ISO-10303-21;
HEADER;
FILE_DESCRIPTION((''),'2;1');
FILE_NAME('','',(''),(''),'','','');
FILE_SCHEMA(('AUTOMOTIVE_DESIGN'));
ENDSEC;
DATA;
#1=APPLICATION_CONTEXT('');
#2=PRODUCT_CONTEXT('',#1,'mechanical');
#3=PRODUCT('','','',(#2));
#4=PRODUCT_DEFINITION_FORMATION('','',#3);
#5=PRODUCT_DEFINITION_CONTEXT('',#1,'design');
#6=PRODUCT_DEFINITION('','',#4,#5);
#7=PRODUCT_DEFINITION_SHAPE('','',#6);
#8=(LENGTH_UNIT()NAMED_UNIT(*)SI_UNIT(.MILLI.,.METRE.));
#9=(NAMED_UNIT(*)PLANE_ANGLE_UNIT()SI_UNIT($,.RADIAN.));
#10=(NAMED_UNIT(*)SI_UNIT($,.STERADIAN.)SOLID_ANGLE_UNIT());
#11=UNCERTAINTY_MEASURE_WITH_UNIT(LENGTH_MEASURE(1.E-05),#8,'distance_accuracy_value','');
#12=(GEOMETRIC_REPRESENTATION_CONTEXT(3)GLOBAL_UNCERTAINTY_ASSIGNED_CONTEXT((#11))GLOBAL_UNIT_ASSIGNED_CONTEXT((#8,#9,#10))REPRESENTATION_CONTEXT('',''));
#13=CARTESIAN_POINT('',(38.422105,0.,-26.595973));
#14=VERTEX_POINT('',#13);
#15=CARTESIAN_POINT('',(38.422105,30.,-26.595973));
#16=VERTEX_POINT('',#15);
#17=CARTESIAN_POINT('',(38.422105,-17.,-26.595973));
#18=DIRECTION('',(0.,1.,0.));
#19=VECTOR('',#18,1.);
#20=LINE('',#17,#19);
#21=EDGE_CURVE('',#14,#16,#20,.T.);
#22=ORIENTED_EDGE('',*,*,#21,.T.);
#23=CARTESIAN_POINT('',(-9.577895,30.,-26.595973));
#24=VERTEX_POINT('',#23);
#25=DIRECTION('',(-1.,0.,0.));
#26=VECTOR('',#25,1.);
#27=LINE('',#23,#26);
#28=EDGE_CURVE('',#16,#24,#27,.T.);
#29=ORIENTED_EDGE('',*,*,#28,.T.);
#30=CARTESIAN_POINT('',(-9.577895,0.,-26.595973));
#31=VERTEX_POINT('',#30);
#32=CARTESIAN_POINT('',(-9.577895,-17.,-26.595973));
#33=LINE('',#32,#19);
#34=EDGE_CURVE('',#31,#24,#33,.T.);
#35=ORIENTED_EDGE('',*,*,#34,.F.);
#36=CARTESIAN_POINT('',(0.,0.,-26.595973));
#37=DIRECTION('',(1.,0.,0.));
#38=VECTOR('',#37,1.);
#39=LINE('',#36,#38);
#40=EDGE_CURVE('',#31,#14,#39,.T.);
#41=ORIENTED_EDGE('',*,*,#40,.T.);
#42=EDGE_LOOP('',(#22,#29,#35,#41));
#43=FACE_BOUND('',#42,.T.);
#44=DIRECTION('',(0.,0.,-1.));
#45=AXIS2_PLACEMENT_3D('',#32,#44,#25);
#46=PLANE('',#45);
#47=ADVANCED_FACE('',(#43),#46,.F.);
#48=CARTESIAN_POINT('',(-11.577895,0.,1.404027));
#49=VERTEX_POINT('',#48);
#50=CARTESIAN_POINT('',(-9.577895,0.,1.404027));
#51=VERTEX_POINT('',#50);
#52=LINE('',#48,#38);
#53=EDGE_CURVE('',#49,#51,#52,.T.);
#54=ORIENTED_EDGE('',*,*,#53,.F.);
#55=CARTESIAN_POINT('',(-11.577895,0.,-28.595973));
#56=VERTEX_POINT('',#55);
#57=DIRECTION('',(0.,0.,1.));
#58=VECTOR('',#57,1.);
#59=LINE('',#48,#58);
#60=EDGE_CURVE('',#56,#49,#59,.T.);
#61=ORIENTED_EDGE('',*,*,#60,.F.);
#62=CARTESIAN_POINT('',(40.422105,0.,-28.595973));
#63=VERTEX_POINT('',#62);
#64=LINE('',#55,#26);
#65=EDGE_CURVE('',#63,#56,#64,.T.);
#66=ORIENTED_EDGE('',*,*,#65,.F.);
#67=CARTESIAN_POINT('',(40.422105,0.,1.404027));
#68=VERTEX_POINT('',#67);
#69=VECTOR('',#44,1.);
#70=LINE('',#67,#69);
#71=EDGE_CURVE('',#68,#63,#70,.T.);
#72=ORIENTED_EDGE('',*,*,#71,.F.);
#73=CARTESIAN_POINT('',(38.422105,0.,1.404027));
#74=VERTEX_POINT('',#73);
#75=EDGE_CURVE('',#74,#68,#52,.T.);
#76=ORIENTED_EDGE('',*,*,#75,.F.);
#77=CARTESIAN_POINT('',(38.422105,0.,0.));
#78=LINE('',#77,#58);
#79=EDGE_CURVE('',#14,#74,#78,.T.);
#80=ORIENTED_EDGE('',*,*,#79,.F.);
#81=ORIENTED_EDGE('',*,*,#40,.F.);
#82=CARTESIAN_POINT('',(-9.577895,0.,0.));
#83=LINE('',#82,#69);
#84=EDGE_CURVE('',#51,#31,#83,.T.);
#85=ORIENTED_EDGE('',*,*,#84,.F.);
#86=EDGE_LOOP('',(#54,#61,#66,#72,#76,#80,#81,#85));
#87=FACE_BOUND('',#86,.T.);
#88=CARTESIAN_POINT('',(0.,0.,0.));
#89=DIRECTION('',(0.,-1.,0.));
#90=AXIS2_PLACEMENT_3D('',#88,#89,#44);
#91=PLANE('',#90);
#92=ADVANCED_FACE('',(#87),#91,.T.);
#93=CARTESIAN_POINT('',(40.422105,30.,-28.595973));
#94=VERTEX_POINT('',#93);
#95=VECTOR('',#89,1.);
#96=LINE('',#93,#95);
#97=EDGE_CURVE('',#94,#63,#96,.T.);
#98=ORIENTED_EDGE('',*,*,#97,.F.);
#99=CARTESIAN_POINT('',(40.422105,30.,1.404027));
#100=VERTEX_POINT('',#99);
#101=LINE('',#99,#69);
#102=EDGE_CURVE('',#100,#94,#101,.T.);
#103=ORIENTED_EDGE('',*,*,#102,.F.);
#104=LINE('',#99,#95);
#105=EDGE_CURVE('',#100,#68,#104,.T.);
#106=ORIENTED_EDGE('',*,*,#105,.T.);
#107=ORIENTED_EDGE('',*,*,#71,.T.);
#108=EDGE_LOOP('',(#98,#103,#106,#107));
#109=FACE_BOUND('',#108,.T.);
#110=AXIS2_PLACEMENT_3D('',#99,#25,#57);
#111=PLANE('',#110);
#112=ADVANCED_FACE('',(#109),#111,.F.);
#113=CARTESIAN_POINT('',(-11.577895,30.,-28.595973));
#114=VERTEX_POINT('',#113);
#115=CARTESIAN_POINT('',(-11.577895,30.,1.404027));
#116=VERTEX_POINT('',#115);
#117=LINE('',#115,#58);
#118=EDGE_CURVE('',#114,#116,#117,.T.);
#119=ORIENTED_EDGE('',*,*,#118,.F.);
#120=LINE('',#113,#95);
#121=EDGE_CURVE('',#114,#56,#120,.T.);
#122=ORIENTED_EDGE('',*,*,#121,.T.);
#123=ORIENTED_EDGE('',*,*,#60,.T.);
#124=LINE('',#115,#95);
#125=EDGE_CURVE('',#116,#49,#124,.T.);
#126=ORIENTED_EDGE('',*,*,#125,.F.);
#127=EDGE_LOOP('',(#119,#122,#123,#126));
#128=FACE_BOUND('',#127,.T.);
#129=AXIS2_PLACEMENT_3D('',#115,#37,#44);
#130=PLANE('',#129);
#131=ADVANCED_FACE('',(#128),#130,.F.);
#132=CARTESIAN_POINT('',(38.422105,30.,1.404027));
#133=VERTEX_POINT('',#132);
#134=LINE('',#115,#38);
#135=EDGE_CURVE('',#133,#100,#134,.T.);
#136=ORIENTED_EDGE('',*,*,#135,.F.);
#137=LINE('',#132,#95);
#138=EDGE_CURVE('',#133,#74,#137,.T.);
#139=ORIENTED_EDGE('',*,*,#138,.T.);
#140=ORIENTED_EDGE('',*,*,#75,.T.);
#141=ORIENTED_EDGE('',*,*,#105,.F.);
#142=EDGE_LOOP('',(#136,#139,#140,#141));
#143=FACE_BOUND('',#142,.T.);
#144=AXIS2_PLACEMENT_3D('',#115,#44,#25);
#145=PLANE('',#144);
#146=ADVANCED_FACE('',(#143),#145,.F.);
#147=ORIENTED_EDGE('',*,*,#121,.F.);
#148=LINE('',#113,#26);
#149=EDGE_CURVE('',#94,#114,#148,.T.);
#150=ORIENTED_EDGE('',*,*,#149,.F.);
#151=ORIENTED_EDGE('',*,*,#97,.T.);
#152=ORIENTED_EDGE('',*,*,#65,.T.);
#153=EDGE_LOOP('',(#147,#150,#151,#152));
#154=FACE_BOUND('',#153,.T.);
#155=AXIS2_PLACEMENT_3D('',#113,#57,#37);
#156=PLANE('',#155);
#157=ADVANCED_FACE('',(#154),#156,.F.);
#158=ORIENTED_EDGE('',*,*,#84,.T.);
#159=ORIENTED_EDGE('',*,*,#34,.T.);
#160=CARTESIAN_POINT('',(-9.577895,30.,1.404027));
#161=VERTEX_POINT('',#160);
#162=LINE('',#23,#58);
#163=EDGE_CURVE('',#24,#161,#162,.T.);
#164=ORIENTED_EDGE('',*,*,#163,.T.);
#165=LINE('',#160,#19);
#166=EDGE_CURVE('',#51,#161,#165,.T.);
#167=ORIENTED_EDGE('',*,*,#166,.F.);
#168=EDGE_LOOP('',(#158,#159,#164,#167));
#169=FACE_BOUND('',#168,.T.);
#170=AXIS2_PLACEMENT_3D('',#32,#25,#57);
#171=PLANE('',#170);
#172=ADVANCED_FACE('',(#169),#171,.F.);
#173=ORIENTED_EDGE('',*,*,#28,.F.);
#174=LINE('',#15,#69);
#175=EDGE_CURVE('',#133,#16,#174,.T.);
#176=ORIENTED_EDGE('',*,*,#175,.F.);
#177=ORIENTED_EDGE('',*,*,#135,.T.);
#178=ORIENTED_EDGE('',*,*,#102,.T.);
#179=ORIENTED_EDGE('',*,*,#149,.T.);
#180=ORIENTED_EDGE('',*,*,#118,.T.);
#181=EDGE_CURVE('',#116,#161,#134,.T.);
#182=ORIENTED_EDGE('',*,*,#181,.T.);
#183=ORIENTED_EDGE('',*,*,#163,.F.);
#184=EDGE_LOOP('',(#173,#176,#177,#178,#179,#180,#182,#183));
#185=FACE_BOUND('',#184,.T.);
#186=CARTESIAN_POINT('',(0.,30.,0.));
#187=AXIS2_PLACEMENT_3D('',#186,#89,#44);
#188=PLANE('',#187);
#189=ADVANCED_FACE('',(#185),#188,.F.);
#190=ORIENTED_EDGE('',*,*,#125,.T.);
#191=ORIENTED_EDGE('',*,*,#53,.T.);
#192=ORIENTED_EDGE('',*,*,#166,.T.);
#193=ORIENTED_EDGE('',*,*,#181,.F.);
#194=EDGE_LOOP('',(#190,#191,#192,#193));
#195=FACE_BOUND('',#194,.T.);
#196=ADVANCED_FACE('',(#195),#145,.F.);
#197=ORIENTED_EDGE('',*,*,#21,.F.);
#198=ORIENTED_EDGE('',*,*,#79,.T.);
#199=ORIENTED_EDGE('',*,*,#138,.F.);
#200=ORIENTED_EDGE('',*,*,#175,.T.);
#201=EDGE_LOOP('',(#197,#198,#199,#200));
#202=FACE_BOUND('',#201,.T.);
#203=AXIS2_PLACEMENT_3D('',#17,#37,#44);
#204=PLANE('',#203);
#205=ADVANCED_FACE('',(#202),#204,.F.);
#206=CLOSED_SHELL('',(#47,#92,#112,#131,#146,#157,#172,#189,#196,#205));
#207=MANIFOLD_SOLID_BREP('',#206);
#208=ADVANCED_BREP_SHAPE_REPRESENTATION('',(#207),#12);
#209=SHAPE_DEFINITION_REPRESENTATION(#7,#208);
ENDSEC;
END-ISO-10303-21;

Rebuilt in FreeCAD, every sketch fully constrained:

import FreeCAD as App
import Part
import Sketcher
from FreeCAD import Vector


def add_polygon(sketch, points):
    """Adds a closed chain of lines whose ends are joined by coincident constraints."""
    first, n = sketch.GeometryCount, len(points)
    for a, b in zip(points, points[1:] + points[:1]):
        sketch.addGeometry(Part.LineSegment(App.Vector(*a, 0), App.Vector(*b, 0)), False)
    for i in range(n):
        sketch.addConstraint(Sketcher.Constraint("Coincident", first + i, 2, first + (i + 1) % n, 1))

doc = App.newDocument("Part")
body = doc.addObject("PartDesign::Body", "Body")

sketch1 = body.newObject("Sketcher::SketchObject", "Sketch")
sketch1.AttachmentSupport = (doc.getObject("XZ_Plane"), [""])
sketch1.MapMode = "FlatFace"
add_polygon(sketch1, [(-12, -29), (-12, 1), (40, 1), (40, -29)])
sketch1.addConstraint([
    Sketcher.Constraint("Vertical", 0),
    Sketcher.Constraint("Horizontal", 1),
    Sketcher.Constraint("Vertical", 2),
    Sketcher.Constraint("Horizontal", 3),
    Sketcher.Constraint("DistanceX", 1, 1, 1, 2, 52.0),
    Sketcher.Constraint("DistanceY", 0, 1, 0, 2, 30.0),
    Sketcher.Constraint("DistanceX", 0, 2, -1, 1, 11.577895),
    Sketcher.Constraint("DistanceY", -1, 1, 0, 2, 1.404027),
])
pad1 = body.newObject("PartDesign::Pad", "Pad")
pad1.Profile = sketch1
pad1.Length = 30
pad1.Reversed = True

sketch2 = body.newObject("Sketcher::SketchObject", "Sketch001")
sketch2.AttachmentSupport = (doc.getObject("XZ_Plane"), [""])
sketch2.MapMode = "FlatFace"
sketch2.AttachmentOffset = App.Placement(Vector(0, 0, -30), App.Rotation())
add_polygon(sketch2, [(-10, -27), (-10, 7), (38, 7), (38, -27)])
sketch2.addConstraint([
    Sketcher.Constraint("Vertical", 0),
    Sketcher.Constraint("Horizontal", 1),
    Sketcher.Constraint("Vertical", 2),
    Sketcher.Constraint("Horizontal", 3),
    Sketcher.Constraint("DistanceX", 1, 1, 1, 2, 48.0),
    Sketcher.Constraint("DistanceY", 0, 1, 0, 2, 33.318107),
    Sketcher.Constraint("DistanceX", 0, 2, -1, 1, 9.577895),
    Sketcher.Constraint("DistanceY", -1, 1, 0, 2, 6.722135),
])
pocket1 = body.newObject("PartDesign::Pocket", "Pocket")
pocket1.Profile = sketch2
pocket1.Length = 47
pocket1.Reversed = True

doc.recompute()
